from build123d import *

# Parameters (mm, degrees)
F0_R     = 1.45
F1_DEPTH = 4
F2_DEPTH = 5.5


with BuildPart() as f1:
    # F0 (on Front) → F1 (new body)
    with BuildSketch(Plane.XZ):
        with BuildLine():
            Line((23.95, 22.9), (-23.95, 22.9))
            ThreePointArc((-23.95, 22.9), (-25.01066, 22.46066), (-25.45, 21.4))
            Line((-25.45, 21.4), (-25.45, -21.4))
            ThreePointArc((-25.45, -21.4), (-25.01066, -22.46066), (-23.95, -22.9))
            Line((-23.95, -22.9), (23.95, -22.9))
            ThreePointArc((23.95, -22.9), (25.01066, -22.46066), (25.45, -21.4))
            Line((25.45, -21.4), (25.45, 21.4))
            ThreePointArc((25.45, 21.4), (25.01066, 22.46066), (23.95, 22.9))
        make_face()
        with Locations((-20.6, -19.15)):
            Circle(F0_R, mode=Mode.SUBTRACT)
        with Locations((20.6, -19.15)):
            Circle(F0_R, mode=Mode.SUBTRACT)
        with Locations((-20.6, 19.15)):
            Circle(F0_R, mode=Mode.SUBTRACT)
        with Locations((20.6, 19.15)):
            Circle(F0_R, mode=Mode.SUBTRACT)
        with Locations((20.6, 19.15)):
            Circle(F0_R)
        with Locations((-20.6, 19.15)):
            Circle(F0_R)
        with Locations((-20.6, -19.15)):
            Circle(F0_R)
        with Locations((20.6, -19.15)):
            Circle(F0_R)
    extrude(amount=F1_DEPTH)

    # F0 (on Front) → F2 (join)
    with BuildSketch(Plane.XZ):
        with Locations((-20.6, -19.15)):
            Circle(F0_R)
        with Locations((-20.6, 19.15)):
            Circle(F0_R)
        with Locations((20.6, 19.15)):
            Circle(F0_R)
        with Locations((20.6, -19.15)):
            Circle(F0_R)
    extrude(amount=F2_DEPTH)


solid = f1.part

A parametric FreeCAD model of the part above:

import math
import FreeCAD as App
import Part
import Sketcher

V = App.Vector
Q = App.Units.Quantity

doc = App.newDocument("Part")
params = doc.addObject("Spreadsheet::Sheet", "Params")
for row, (alias, value) in enumerate([
    ("sketch1_radius", "1.500001 mm"),
    ("sketch1_width", "47.9 mm"),
    ("sketch1_height", "42.8 mm"),
    ("pad1_length", "4 mm"),
    ("sketch2_diameter", "2.9 mm"),
    ("pad2_length", "5.5 mm"),
], start=1):
    params.set(f"A{row}", alias)
    params.set(f"B{row}", "=" + value)
    params.setAlias(f"B{row}", alias)

body = doc.addObject("PartDesign::Body", "Body")

# Sketch on XZ plane
sketch1 = body.newObject("Sketcher::SketchObject", "Sketch")
sketch1.AttachmentSupport = (doc.getObject("XZ_Plane"), [""])
sketch1.MapMode = "FlatFace"
sketch1.addGeometry([
    Part.LineSegment(V(23.9, 22.9, 0), V(-23.9, 22.9, 0)),  # 0
    Part.ArcOfCircle(Part.Circle(V(-23.9, 21.4, 0), V(0, 0, 1), 1.5), math.radians(90), math.radians(180)),  # 1
    Part.LineSegment(V(-25.4, 21.4, 0), V(-25.4, -21.4, 0)),  # 2
    Part.ArcOfCircle(Part.Circle(V(-23.9, -21.4, 0), V(0, 0, 1), 1.5), math.radians(-180), math.radians(-90)),  # 3
    Part.LineSegment(V(-23.9, -22.9, 0), V(23.9, -22.9, 0)),  # 4
    Part.ArcOfCircle(Part.Circle(V(23.9, -21.4, 0), V(0, 0, 1), 1.5), math.radians(-90), math.radians(0)),  # 5
    Part.LineSegment(V(25.4, -21.4, 0), V(25.4, 21.4, 0)),  # 6
    Part.ArcOfCircle(Part.Circle(V(23.9, 21.4, 0), V(0, 0, 1), 1.5), math.radians(0), math.radians(90)),  # 7
], False)
sketch1.addConstraint([
    Sketcher.Constraint("Tangent", 0, 2, 1, 1),
    Sketcher.Constraint("Tangent", 1, 2, 2, 1),
    Sketcher.Constraint("Tangent", 2, 2, 3, 1),
    Sketcher.Constraint("Tangent", 3, 2, 4, 1),
    Sketcher.Constraint("Tangent", 4, 2, 5, 1),
    Sketcher.Constraint("Tangent", 5, 2, 6, 1),
    Sketcher.Constraint("Tangent", 6, 2, 7, 1),
    Sketcher.Constraint("Tangent", 7, 2, 0, 1),
    Sketcher.Constraint("Horizontal", 0),
    Sketcher.Constraint("Vertical", 2),
    Sketcher.Constraint("Horizontal", 4),
    Sketcher.Constraint("Vertical", 6),
    Sketcher.Constraint("Equal", 1, 3),
    Sketcher.Constraint("Equal", 3, 5),
    Sketcher.Constraint("Equal", 5, 7),
    Sketcher.Constraint("Symmetric", 1, 3, 5, 3, -1, 1),
    Sketcher.Constraint("Radius", 1, Q("1.500001 mm")),
    Sketcher.Constraint("DistanceX", 0, 2, 0, 1, Q("47.9 mm")),
    Sketcher.Constraint("DistanceY", 2, 2, 2, 1, Q("42.8 mm")),
])
sketch1.setExpression("Constraints[16]", "Params.sketch1_radius")
sketch1.setExpression("Constraints[17]", "Params.sketch1_width")
sketch1.setExpression("Constraints[18]", "Params.sketch1_height")
pad1 = body.newObject("PartDesign::Pad", "Pad")
pad1.Profile = sketch1
pad1.setExpression("Length", "Params.pad1_length")

# Sketch on XZ plane
sketch2 = body.newObject("Sketcher::SketchObject", "Sketch001")
sketch2.AttachmentSupport = (doc.getObject("XZ_Plane"), [""])
sketch2.MapMode = "FlatFace"
sketch2.addGeometry([
    Part.Circle(V(-20.6, -19.1, 0), V(0, 0, 1), 1.4),
    Part.Circle(V(-20.6, 19.1, 0), V(0, 0, 1), 1.4),
    Part.Circle(V(20.6, 19.1, 0), V(0, 0, 1), 1.4),
    Part.Circle(V(20.6, -19.1, 0), V(0, 0, 1), 1.4),
], False)
sketch2.addConstraint([
    Sketcher.Constraint("Equal", 0, 1),
    Sketcher.Constraint("Equal", 1, 2),
    Sketcher.Constraint("Equal", 2, 3),
    Sketcher.Constraint("Symmetric", 0, 3, 2, 3, -1, 1),
    Sketcher.Constraint("Symmetric", 1, 3, 3, 3, -1, 1),
    Sketcher.Constraint("Symmetric", 1, 3, 2, 3, -2),
    Sketcher.Constraint("Diameter", 0, Q("2.9 mm")),
    Sketcher.Constraint("DistanceX", 0, 3, -1, 1, Q("20.6 mm")),
    Sketcher.Constraint("DistanceY", 0, 3, 1, 3, Q("38.3 mm")),
])
sketch2.setExpression("Constraints[6]", "Params.sketch2_diameter")
pad2 = body.newObject("PartDesign::Pad", "Pad001")
pad2.Profile = sketch2
pad2.setExpression("Length", "Params.pad2_length")

doc.recompute()
